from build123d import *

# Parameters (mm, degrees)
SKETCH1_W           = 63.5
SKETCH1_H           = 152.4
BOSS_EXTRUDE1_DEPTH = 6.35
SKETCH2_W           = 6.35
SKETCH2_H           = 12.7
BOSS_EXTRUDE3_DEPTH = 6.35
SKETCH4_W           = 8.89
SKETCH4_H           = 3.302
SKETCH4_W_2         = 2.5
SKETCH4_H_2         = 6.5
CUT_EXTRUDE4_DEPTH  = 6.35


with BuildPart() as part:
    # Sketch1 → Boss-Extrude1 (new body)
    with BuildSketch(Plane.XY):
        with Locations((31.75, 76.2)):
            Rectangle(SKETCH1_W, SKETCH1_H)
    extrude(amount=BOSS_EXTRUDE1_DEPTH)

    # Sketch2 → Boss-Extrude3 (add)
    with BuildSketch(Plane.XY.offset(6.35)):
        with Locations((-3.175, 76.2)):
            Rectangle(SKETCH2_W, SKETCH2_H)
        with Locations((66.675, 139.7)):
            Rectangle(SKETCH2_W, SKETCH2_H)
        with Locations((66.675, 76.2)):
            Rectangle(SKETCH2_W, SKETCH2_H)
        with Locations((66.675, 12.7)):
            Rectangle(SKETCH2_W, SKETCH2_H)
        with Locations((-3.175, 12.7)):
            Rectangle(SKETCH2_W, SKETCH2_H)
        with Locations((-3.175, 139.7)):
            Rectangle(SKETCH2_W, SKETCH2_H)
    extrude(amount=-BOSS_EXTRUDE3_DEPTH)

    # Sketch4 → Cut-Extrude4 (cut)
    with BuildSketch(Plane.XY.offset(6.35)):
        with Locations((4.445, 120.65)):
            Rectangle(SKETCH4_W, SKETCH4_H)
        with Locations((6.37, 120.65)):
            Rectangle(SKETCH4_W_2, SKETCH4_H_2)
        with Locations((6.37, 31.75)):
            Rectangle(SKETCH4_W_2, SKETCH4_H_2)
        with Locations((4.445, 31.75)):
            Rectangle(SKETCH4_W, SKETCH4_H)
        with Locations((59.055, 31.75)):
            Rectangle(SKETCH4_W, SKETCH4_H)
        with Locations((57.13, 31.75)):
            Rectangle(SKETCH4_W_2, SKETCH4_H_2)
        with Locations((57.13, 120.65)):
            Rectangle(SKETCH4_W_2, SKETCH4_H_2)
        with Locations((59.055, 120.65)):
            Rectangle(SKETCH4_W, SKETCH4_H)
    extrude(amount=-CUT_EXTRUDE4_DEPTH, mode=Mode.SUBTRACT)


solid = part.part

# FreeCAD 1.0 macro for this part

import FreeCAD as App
import Part
import Sketcher

V = App.Vector
Q = App.Units.Quantity

doc = App.newDocument("Part")
params = doc.addObject("Spreadsheet::Sheet", "Params")
for row, (alias, value) in enumerate([
    ("sketch1_height", "6 in"),
    ("sketch1_width", "2.5 in"),
    ("pad1_length", "0.25 in"),
    ("sketch2_height", "0.5 in"),
    ("sketch2_width", "0.25 in"),
    ("pad2_length", "0.25 in"),
    ("sketch3_width", "0.05 in"),
    ("sketch3_height", "0.13 in"),
    ("pocket1_length", "0.25 in"),
], start=1):
    params.set(f"A{row}", alias)
    params.set(f"B{row}", "=" + value)
    params.setAlias(f"B{row}", alias)

body = doc.addObject("PartDesign::Body", "Body")

sketch1 = body.newObject("Sketcher::SketchObject", "Sketch")
sketch1.AttachmentSupport = (doc.getObject("XY_Plane"), [""])
sketch1.MapMode = "FlatFace"
sketch1.addGeometry([
    Part.LineSegment(V(0, 152.4, 0), V(0, 0, 0)),
    Part.LineSegment(V(0, 0, 0), V(63.5, 0, 0)),
    Part.LineSegment(V(63.5, 0, 0), V(63.5, 152.4, 0)),
    Part.LineSegment(V(63.5, 152.4, 0), V(0, 152.4, 0)),
], False)
sketch1.addConstraint([
    Sketcher.Constraint("Coincident", 0, 2, 1, 1),
    Sketcher.Constraint("Coincident", 1, 2, 2, 1),
    Sketcher.Constraint("Coincident", 2, 2, 3, 1),
    Sketcher.Constraint("Coincident", 3, 2, 0, 1),
    Sketcher.Constraint("Vertical", 0),
    Sketcher.Constraint("Horizontal", 1),
    Sketcher.Constraint("Vertical", 2),
    Sketcher.Constraint("Horizontal", 3),
    Sketcher.Constraint("Coincident", 0, 2, -1, 1),
    Sketcher.Constraint("DistanceY", 0, 2, 0, 1, Q("6 in")),
    Sketcher.Constraint("DistanceX", 1, 1, 1, 2, Q("2.5 in")),
])
sketch1.setExpression("Constraints[9]", "Params.sketch1_height")
sketch1.setExpression("Constraints[10]", "Params.sketch1_width")
pad1 = body.newObject("PartDesign::Pad", "Pad")
pad1.Profile = sketch1
pad1.setExpression("Length", "Params.pad1_length")

sketch2 = body.newObject("Sketcher::SketchObject", "Sketch001")
sketch2.AttachmentSupport = (doc.getObject("XY_Plane"), [""])
sketch2.MapMode = "FlatFace"
sketch2.AttachmentOffset = App.Placement(V(0, 0, 0.25 * 25.4), App.Rotation())
sketch2.addGeometry([
    Part.LineSegment(V(-6.35, 82.55, 0), V(-6.35, 69.85, 0)),
    Part.LineSegment(V(-6.35, 69.85, 0), V(0, 69.85, 0)),
    Part.LineSegment(V(0, 69.85, 0), V(0, 82.55, 0)),
    Part.LineSegment(V(0, 82.55, 0), V(-6.35, 82.55, 0)),
    Part.LineSegment(V(63.5, 146.05, 0), V(63.5, 133.35, 0)),
    Part.LineSegment(V(63.5, 133.35, 0), V(69.85, 133.35, 0)),
    Part.LineSegment(V(69.85, 133.35, 0), V(69.85, 146.05, 0)),
    Part.LineSegment(V(69.85, 146.05, 0), V(63.5, 146.05, 0)),
    Part.LineSegment(V(63.5, 82.55, 0), V(63.5, 69.85, 0)),
    Part.LineSegment(V(63.5, 69.85, 0), V(69.85, 69.85, 0)),
    Part.LineSegment(V(69.85, 69.85, 0), V(69.85, 82.55, 0)),
    Part.LineSegment(V(69.85, 82.55, 0), V(63.5, 82.55, 0)),
    Part.LineSegment(V(63.5, 19.05, 0), V(63.5, 6.35, 0)),
    Part.LineSegment(V(63.5, 6.35, 0), V(69.85, 6.35, 0)),
    Part.LineSegment(V(69.85, 6.35, 0), V(69.85, 19.05, 0)),
    Part.LineSegment(V(69.85, 19.05, 0), V(63.5, 19.05, 0)),
    Part.LineSegment(V(-6.35, 19.05, 0), V(-6.35, 6.35, 0)),
    Part.LineSegment(V(-6.35, 6.35, 0), V(0, 6.35, 0)),
    Part.LineSegment(V(0, 6.35, 0), V(0, 19.05, 0)),
    Part.LineSegment(V(0, 19.05, 0), V(-6.35, 19.05, 0)),
    Part.LineSegment(V(-6.35, 146.05, 0), V(-6.35, 133.35, 0)),
    Part.LineSegment(V(-6.35, 133.35, 0), V(0, 133.35, 0)),
    Part.LineSegment(V(0, 133.35, 0), V(0, 146.05, 0)),
    Part.LineSegment(V(0, 146.05, 0), V(-6.35, 146.05, 0)),
], False)
sketch2.addConstraint([
    Sketcher.Constraint("Coincident", 0, 2, 1, 1),
    Sketcher.Constraint("Coincident", 1, 2, 2, 1),
    Sketcher.Constraint("Coincident", 2, 2, 3, 1),
    Sketcher.Constraint("Coincident", 3, 2, 0, 1),
    Sketcher.Constraint("Coincident", 4, 2, 5, 1),
    Sketcher.Constraint("Coincident", 5, 2, 6, 1),
    Sketcher.Constraint("Coincident", 6, 2, 7, 1),
    Sketcher.Constraint("Coincident", 7, 2, 4, 1),
    Sketcher.Constraint("Coincident", 8, 2, 9, 1),
    Sketcher.Constraint("Coincident", 9, 2, 10, 1),
    Sketcher.Constraint("Coincident", 10, 2, 11, 1),
    Sketcher.Constraint("Coincident", 11, 2, 8, 1),
    Sketcher.Constraint("Coincident", 12, 2, 13, 1),
    Sketcher.Constraint("Coincident", 13, 2, 14, 1),
    Sketcher.Constraint("Coincident", 14, 2, 15, 1),
    Sketcher.Constraint("Coincident", 15, 2, 12, 1),
    Sketcher.Constraint("Coincident", 16, 2, 17, 1),
    Sketcher.Constraint("Coincident", 17, 2, 18, 1),
    Sketcher.Constraint("Coincident", 18, 2, 19, 1),
    Sketcher.Constraint("Coincident", 19, 2, 16, 1),
    Sketcher.Constraint("Coincident", 20, 2, 21, 1),
    Sketcher.Constraint("Coincident", 21, 2, 22, 1),
    Sketcher.Constraint("Coincident", 22, 2, 23, 1),
    Sketcher.Constraint("Coincident", 23, 2, 20, 1),
    Sketcher.Constraint("Vertical", 0),
    Sketcher.Constraint("Horizontal", 1),
    Sketcher.Constraint("Vertical", 2),
    Sketcher.Constraint("Horizontal", 3),
    Sketcher.Constraint("Vertical", 4),
    Sketcher.Constraint("Horizontal", 5),
    Sketcher.Constraint("Vertical", 6),
    Sketcher.Constraint("Horizontal", 7),
    Sketcher.Constraint("Vertical", 8),
    Sketcher.Constraint("Horizontal", 9),
    Sketcher.Constraint("Vertical", 10),
    Sketcher.Constraint("Horizontal", 11),
    Sketcher.Constraint("Vertical", 12),
    Sketcher.Constraint("Horizontal", 13),
    Sketcher.Constraint("Vertical", 14),
    Sketcher.Constraint("Horizontal", 15),
    Sketcher.Constraint("Vertical", 16),
    Sketcher.Constraint("Horizontal", 17),
    Sketcher.Constraint("Vertical", 18),
    Sketcher.Constraint("Horizontal", 19),
    Sketcher.Constraint("Vertical", 20),
    Sketcher.Constraint("Horizontal", 21),
    Sketcher.Constraint("Vertical", 22),
    Sketcher.Constraint("Horizontal", 23),
    Sketcher.Constraint("PointOnObject", 1, 2, -2),
    Sketcher.Constraint("PointOnObject", 17, 2, -2),
    Sketcher.Constraint("PointOnObject", 21, 2, -2),
    Sketcher.Constraint("Horizontal", 1, 2, 8, 2),
    Sketcher.Constraint("Horizontal", 3, 2, 10, 2),
    Sketcher.Constraint("Horizontal", 13, 2, 16, 2),
    Sketcher.Constraint("Horizontal", 15, 2, 18, 2),
    Sketcher.Constraint("Horizontal", 5, 2, 20, 2),
    Sketcher.Constraint("Horizontal", 7, 2, 22, 2),
    Sketcher.Constraint("Vertical", 7, 2, 8, 2),
    Sketcher.Constraint("Vertical", 6, 2, 9, 2),
    Sketcher.Constraint("Vertical", 11, 2, 12, 2),
    Sketcher.Constraint("Vertical", 10, 2, 13, 2),
    Sketcher.Constraint("Vertical", 3, 2, 16, 2),
    Sketcher.Constraint("Vertical", 19, 2, 20, 2),
    Sketcher.Constraint("Equal", 3, 5),
    Sketcher.Constraint("Equal", 2, 4),
    Sketcher.Constraint("Equal", 10, 12),
    Sketcher.Constraint("DistanceY", 0, 2, 0, 1, Q("0.5 in")),
    Sketcher.Constraint("DistanceY", 2, 2, 4, 2, Q("2 in")),
    Sketcher.Constraint("DistanceX", 3, 2, 5, 2, Q("3 in")),
    Sketcher.Constraint("DistanceY", 12, 2, 11, 2, Q("3 in")),
    Sketcher.Constraint("DistanceX", 1, 1, 1, 2, Q("0.25 in")),
    Sketcher.Constraint("DistanceY", -1, 1, 0, 2, Q("2.75 in")),
])
sketch2.setExpression("Constraints[66]", "Params.sketch2_height")
sketch2.setExpression("Constraints[70]", "Params.sketch2_width")
pad2 = body.newObject("PartDesign::Pad", "Pad001")
pad2.Profile = sketch2
pad2.setExpression("Length", "Params.pad2_length")
pad2.Reversed = True

sketch3 = body.newObject("Sketcher::SketchObject", "Sketch002")
sketch3.AttachmentSupport = (doc.getObject("XY_Plane"), [""])
sketch3.MapMode = "FlatFace"
sketch3.AttachmentOffset = App.Placement(V(0, 0, 0.25 * 25.4), App.Rotation())
sketch3.addGeometry([
    Part.LineSegment(V(0, 122.301, 0), V(0, 118.999, 0)),
    Part.LineSegment(V(0, 118.999, 0), V(5.12, 118.999, 0)),
    Part.LineSegment(V(5.12, 118.999, 0), V(5.12, 117.4, 0)),
    Part.LineSegment(V(5.12, 117.4, 0), V(7.62, 117.4, 0)),
    Part.LineSegment(V(7.62, 117.4, 0), V(7.62, 118.999, 0)),
    Part.LineSegment(V(7.62, 118.999, 0), V(8.89, 118.999, 0)),
    Part.LineSegment(V(8.89, 118.999, 0), V(8.89, 122.301, 0)),
    Part.LineSegment(V(8.89, 122.301, 0), V(7.62, 122.301, 0)),
    Part.LineSegment(V(7.62, 122.301, 0), V(7.62, 123.9, 0)),
    Part.LineSegment(V(7.62, 123.9, 0), V(5.12, 123.9, 0)),
    Part.LineSegment(V(5.12, 123.9, 0), V(5.12, 122.301, 0)),
    Part.LineSegment(V(5.12, 122.301, 0), V(0, 122.301, 0)),
    Part.LineSegment(V(5.12, 30.099, 0), V(5.12, 28.5, 0)),
    Part.LineSegment(V(5.12, 28.5, 0), V(7.62, 28.5, 0)),
    Part.LineSegment(V(7.62, 28.5, 0), V(7.62, 30.099, 0)),
    Part.LineSegment(V(7.62, 30.099, 0), V(8.89, 30.099, 0)),
    Part.LineSegment(V(8.89, 30.099, 0), V(8.89, 33.401, 0)),
    Part.LineSegment(V(8.89, 33.401, 0), V(7.62, 33.401, 0)),
    Part.LineSegment(V(7.62, 33.401, 0), V(7.62, 35, 0)),
    Part.LineSegment(V(7.62, 35, 0), V(5.12, 35, 0)),
    Part.LineSegment(V(5.12, 35, 0), V(5.12, 33.401, 0)),
    Part.LineSegment(V(5.12, 33.401, 0), V(0, 33.401, 0)),
    Part.LineSegment(V(0, 33.401, 0), V(0, 30.099, 0)),
    Part.LineSegment(V(0, 30.099, 0), V(5.12, 30.099, 0)),
    Part.LineSegment(V(54.61, 33.401, 0), V(54.61, 30.099, 0)),
    Part.LineSegment(V(54.61, 30.099, 0), V(55.88, 30.099, 0)),
    Part.LineSegment(V(55.88, 30.099, 0), V(55.88, 28.5, 0)),
    Part.LineSegment(V(55.88, 28.5, 0), V(58.38, 28.5, 0)),
    Part.LineSegment(V(58.38, 28.5, 0), V(58.38, 30.099, 0)),
    Part.LineSegment(V(58.38, 30.099, 0), V(63.5, 30.099, 0)),
    Part.LineSegment(V(63.5, 30.099, 0), V(63.5, 33.401, 0)),
    Part.LineSegment(V(63.5, 33.401, 0), V(58.38, 33.401, 0)),
    Part.LineSegment(V(58.38, 33.401, 0), V(58.38, 35, 0)),
    Part.LineSegment(V(58.38, 35, 0), V(55.88, 35, 0)),
    Part.LineSegment(V(55.88, 35, 0), V(55.88, 33.401, 0)),
    Part.LineSegment(V(55.88, 33.401, 0), V(54.61, 33.401, 0)),
    Part.LineSegment(V(55.88, 118.999, 0), V(55.88, 117.4, 0)),
    Part.LineSegment(V(55.88, 117.4, 0), V(58.38, 117.4, 0)),
    Part.LineSegment(V(58.38, 117.4, 0), V(58.38, 118.999, 0)),
    Part.LineSegment(V(58.38, 118.999, 0), V(63.5, 118.999, 0)),
    Part.LineSegment(V(63.5, 118.999, 0), V(63.5, 122.301, 0)),
    Part.LineSegment(V(63.5, 122.301, 0), V(58.38, 122.301, 0)),
    Part.LineSegment(V(58.38, 122.301, 0), V(58.38, 123.9, 0)),
    Part.LineSegment(V(58.38, 123.9, 0), V(55.88, 123.9, 0)),
    Part.LineSegment(V(55.88, 123.9, 0), V(55.88, 122.301, 0)),
    Part.LineSegment(V(55.88, 122.301, 0), V(54.61, 122.301, 0)),
    Part.LineSegment(V(54.61, 122.301, 0), V(54.61, 118.999, 0)),
    Part.LineSegment(V(54.61, 118.999, 0), V(55.88, 118.999, 0)),
], False)
sketch3.addConstraint([
    Sketcher.Constraint("Coincident", 0, 2, 1, 1),
    Sketcher.Constraint("Coincident", 1, 2, 2, 1),
    Sketcher.Constraint("Coincident", 2, 2, 3, 1),
    Sketcher.Constraint("Coincident", 3, 2, 4, 1),
    Sketcher.Constraint("Coincident", 4, 2, 5, 1),
    Sketcher.Constraint("Coincident", 5, 2, 6, 1),
    Sketcher.Constraint("Coincident", 6, 2, 7, 1),
    Sketcher.Constraint("Coincident", 7, 2, 8, 1),
    Sketcher.Constraint("Coincident", 8, 2, 9, 1),
    Sketcher.Constraint("Coincident", 9, 2, 10, 1),
    Sketcher.Constraint("Coincident", 10, 2, 11, 1),
    Sketcher.Constraint("Coincident", 11, 2, 0, 1),
    Sketcher.Constraint("Coincident", 12, 2, 13, 1),
    Sketcher.Constraint("Coincident", 13, 2, 14, 1),
    Sketcher.Constraint("Coincident", 14, 2, 15, 1),
    Sketcher.Constraint("Coincident", 15, 2, 16, 1),
    Sketcher.Constraint("Coincident", 16, 2, 17, 1),
    Sketcher.Constraint("Coincident", 17, 2, 18, 1),
    Sketcher.Constraint("Coincident", 18, 2, 19, 1),
    Sketcher.Constraint("Coincident", 19, 2, 20, 1),
    Sketcher.Constraint("Coincident", 20, 2, 21, 1),
    Sketcher.Constraint("Coincident", 21, 2, 22, 1),
    Sketcher.Constraint("Coincident", 22, 2, 23, 1),
    Sketcher.Constraint("Coincident", 23, 2, 12, 1),
    Sketcher.Constraint("Coincident", 24, 2, 25, 1),
    Sketcher.Constraint("Coincident", 25, 2, 26, 1),
    Sketcher.Constraint("Coincident", 26, 2, 27, 1),
    Sketcher.Constraint("Coincident", 27, 2, 28, 1),
    Sketcher.Constraint("Coincident", 28, 2, 29, 1),
    Sketcher.Constraint("Coincident", 29, 2, 30, 1),
    Sketcher.Constraint("Coincident", 30, 2, 31, 1),
    Sketcher.Constraint("Coincident", 31, 2, 32, 1),
    Sketcher.Constraint("Coincident", 32, 2, 33, 1),
    Sketcher.Constraint("Coincident", 33, 2, 34, 1),
    Sketcher.Constraint("Coincident", 34, 2, 35, 1),
    Sketcher.Constraint("Coincident", 35, 2, 24, 1),
    Sketcher.Constraint("Coincident", 36, 2, 37, 1),
    Sketcher.Constraint("Coincident", 37, 2, 38, 1),
    Sketcher.Constraint("Coincident", 38, 2, 39, 1),
    Sketcher.Constraint("Coincident", 39, 2, 40, 1),
    Sketcher.Constraint("Coincident", 40, 2, 41, 1),
    Sketcher.Constraint("Coincident", 41, 2, 42, 1),
    Sketcher.Constraint("Coincident", 42, 2, 43, 1),
    Sketcher.Constraint("Coincident", 43, 2, 44, 1),
    Sketcher.Constraint("Coincident", 44, 2, 45, 1),
    Sketcher.Constraint("Coincident", 45, 2, 46, 1),
    Sketcher.Constraint("Coincident", 46, 2, 47, 1),
    Sketcher.Constraint("Coincident", 47, 2, 36, 1),
    Sketcher.Constraint("Vertical", 0),
    Sketcher.Constraint("Horizontal", 1),
    Sketcher.Constraint("Vertical", 2),
    Sketcher.Constraint("Horizontal", 3),
    Sketcher.Constraint("Vertical", 4),
    Sketcher.Constraint("Horizontal", 5),
    Sketcher.Constraint("Vertical", 6),
    Sketcher.Constraint("Horizontal", 7),
    Sketcher.Constraint("Vertical", 8),
    Sketcher.Constraint("Horizontal", 9),
    Sketcher.Constraint("Vertical", 10),
    Sketcher.Constraint("Horizontal", 11),
    Sketcher.Constraint("Vertical", 12),
    Sketcher.Constraint("Horizontal", 13),
    Sketcher.Constraint("Vertical", 14),
    Sketcher.Constraint("Horizontal", 15),
    Sketcher.Constraint("Vertical", 16),
    Sketcher.Constraint("Horizontal", 17),
    Sketcher.Constraint("Vertical", 18),
    Sketcher.Constraint("Horizontal", 19),
    Sketcher.Constraint("Vertical", 20),
    Sketcher.Constraint("Horizontal", 21),
    Sketcher.Constraint("Vertical", 22),
    Sketcher.Constraint("Horizontal", 23),
    Sketcher.Constraint("Vertical", 24),
    Sketcher.Constraint("Horizontal", 25),
    Sketcher.Constraint("Vertical", 26),
    Sketcher.Constraint("Horizontal", 27),
    Sketcher.Constraint("Vertical", 28),
    Sketcher.Constraint("Horizontal", 29),
    Sketcher.Constraint("Vertical", 30),
    Sketcher.Constraint("Horizontal", 31),
    Sketcher.Constraint("Vertical", 32),
    Sketcher.Constraint("Horizontal", 33),
    Sketcher.Constraint("Vertical", 34),
    Sketcher.Constraint("Horizontal", 35),
    Sketcher.Constraint("Vertical", 36),
    Sketcher.Constraint("Horizontal", 37),
    Sketcher.Constraint("Vertical", 38),
    Sketcher.Constraint("Horizontal", 39),
    Sketcher.Constraint("Vertical", 40),
    Sketcher.Constraint("Horizontal", 41),
    Sketcher.Constraint("Vertical", 42),
    Sketcher.Constraint("Horizontal", 43),
    Sketcher.Constraint("Vertical", 44),
    Sketcher.Constraint("Horizontal", 45),
    Sketcher.Constraint("Vertical", 46),
    Sketcher.Constraint("Horizontal", 47),
    Sketcher.Constraint("PointOnObject", 0, 2, -2),
    Sketcher.Constraint("PointOnObject", 21, 2, -2),
    Sketcher.Constraint("Horizontal", 1, 2, 4, 2),
    Sketcher.Constraint("Horizontal", 7, 2, 10, 2),
    Sketcher.Constraint("Horizontal", 17, 2, 20, 2),
    Sketcher.Constraint("Horizontal", 15, 2, 22, 2),
    Sketcher.Constraint("Horizontal", 23, 2, 24, 2),
    Sketcher.Constraint("Horizontal", 13, 2, 26, 2),
    Sketcher.Constraint("Horizontal", 25, 2, 28, 2),
    Sketcher.Constraint("Horizontal", 21, 2, 30, 2),
    Sketcher.Constraint("Horizontal", 19, 2, 32, 2),
    Sketcher.Constraint("Horizontal", 31, 2, 34, 2),
    Sketcher.Constraint("Horizontal", 3, 2, 36, 2),
    Sketcher.Constraint("Horizontal", 5, 2, 38, 2),
    Sketcher.Constraint("Horizontal", 11, 2, 40, 2),
    Sketcher.Constraint("Horizontal", 9, 2, 42, 2),
    Sketcher.Constraint("Horizontal", 41, 2, 44, 2),
    Sketcher.Constraint("Horizontal", 39, 2, 46, 2),
    Sketcher.Constraint("Vertical", 4, 2, 7, 2),
    Sketcher.Constraint("Vertical", 2, 2, 9, 2),
    Sketcher.Constraint("Vertical", 10, 2, 12, 2),
    Sketcher.Constraint("Vertical", 8, 2, 13, 2),
    Sketcher.Constraint("Vertical", 6, 2, 15, 2),
    Sketcher.Constraint("Vertical", 14, 2, 17, 2),
    Sketcher.Constraint("Vertical", 12, 2, 19, 2),
    Sketcher.Constraint("Vertical", 28, 2, 31, 2),
    Sketcher.Constraint("Vertical", 26, 2, 33, 2),
    Sketcher.Constraint("Vertical", 34, 2, 36, 2),
    Sketcher.Constraint("Vertical", 32, 2, 37, 2),
    Sketcher.Constraint("Vertical", 30, 2, 39, 2),
    Sketcher.Constraint("Vertical", 38, 2, 41, 2),
    Sketcher.Constraint("Vertical", 36, 2, 43, 2),
    Sketcher.Constraint("Vertical", 35, 2, 45, 2),
    Sketcher.Constraint("Equal", 17, 25),
    Sketcher.Constraint("Equal", 19, 27),
    Sketcher.Constraint("Equal", 23, 29),
    Sketcher.Constraint("Equal", 4, 8),
    Sketcher.Constraint("Equal", 10, 12),
    Sketcher.Constraint("Equal", 6, 16),
    Sketcher.Constraint("Equal", 14, 18),
    Sketcher.Constraint("DistanceX", 5, 1, 5, 2, Q("0.05 in")),
    Sketcher.Constraint("DistanceY", 0, 2, 0, 1, Q("0.13 in")),
    Sketcher.Constraint("DistanceX", -1, 1, 3, 2, Q("0.3 in")),
    Sketcher.Constraint("DistanceX", -1, 1, 25, 2, Q("2.2 in")),
    Sketcher.Constraint("DistanceY", 12, 2, 2, 2, Q("3.5 in")),
    Sketcher.Constraint("DistanceY", -1, 1, 0, 2, Q("4.685 in")),
    Sketcher.Constraint("DistanceX", 1, 1, 1, 2, 5.12),
    Sketcher.Constraint("DistanceY", 2, 2, 2, 1, 1.599),
])
sketch3.setExpression("Constraints[136]", "Params.sketch3_width")
sketch3.setExpression("Constraints[137]", "Params.sketch3_height")
pocket1 = body.newObject("PartDesign::Pocket", "Pocket")
pocket1.Profile = sketch3
pocket1.setExpression("Length", "Params.pocket1_length")

doc.recompute()
